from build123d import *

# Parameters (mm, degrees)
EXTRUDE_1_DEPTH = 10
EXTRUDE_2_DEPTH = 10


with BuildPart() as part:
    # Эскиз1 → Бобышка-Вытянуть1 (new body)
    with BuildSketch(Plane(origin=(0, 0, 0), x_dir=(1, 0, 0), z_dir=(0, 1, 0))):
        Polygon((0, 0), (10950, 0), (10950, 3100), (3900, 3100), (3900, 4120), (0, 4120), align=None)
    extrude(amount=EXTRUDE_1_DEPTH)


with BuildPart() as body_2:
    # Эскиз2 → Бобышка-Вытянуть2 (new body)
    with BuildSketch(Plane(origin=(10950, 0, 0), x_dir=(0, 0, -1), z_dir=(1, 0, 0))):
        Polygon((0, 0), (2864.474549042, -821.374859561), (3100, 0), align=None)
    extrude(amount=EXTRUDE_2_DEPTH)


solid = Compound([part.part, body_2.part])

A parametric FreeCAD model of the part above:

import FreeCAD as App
import Part
import Sketcher
from FreeCAD import Vector
Q = App.Units.Quantity

doc = App.newDocument("Part")
body = doc.addObject("PartDesign::Body", "Body")

# Sketch on XZ plane
sketch1 = body.newObject("Sketcher::SketchObject", "Sketch")
sketch1.AttachmentSupport = (doc.getObject("XZ_Plane"), [""])
sketch1.MapMode = "FlatFace"
sketch1.addGeometry([
    Part.LineSegment(Vector(0, 0, 0), Vector(10950, 0, 0)),  # 0
    Part.LineSegment(Vector(10950, 0, 0), Vector(10950, -3100, 0)),  # 1
    Part.LineSegment(Vector(10950, -3100, 0), Vector(3900, -3100, 0)),  # 2
    Part.LineSegment(Vector(3900, -3100, 0), Vector(3900, -4120, 0)),  # 3
    Part.LineSegment(Vector(3900, -4120, 0), Vector(0, -4120, 0)),  # 4
    Part.LineSegment(Vector(0, -4120, 0), Vector(0, 0, 0)),  # 5
], False)
sketch1.addConstraint([
    Sketcher.Constraint("Coincident", 0, 2, 1, 1),
    Sketcher.Constraint("Coincident", 1, 2, 2, 1),
    Sketcher.Constraint("Coincident", 2, 2, 3, 1),
    Sketcher.Constraint("Coincident", 3, 2, 4, 1),
    Sketcher.Constraint("Coincident", 4, 2, 5, 1),
    Sketcher.Constraint("Coincident", 5, 2, 0, 1),
    Sketcher.Constraint("Horizontal", 0),
    Sketcher.Constraint("Vertical", 1),
    Sketcher.Constraint("Horizontal", 2),
    Sketcher.Constraint("Vertical", 3),
    Sketcher.Constraint("Horizontal", 4),
    Sketcher.Constraint("Vertical", 5),
    Sketcher.Constraint("Coincident", 5, 2, -1, 1),
    Sketcher.Constraint("DistanceX", 0, 1, 0, 2, Q("10950 mm")),
    Sketcher.Constraint("DistanceX", 2, 2, 2, 1, Q("7050 mm")),
    Sketcher.Constraint("DistanceY", 1, 2, 1, 1, Q("3100 mm")),
    Sketcher.Constraint("DistanceY", 3, 2, 3, 1, Q("1020 mm")),
])
pad1 = body.newObject("PartDesign::Pad", "Pad")
pad1.Profile = sketch1
pad1.Length = 10
pad1.Reversed = True
body2 = doc.addObject("PartDesign::Body", "Body001")

# Sketch on YZ plane
sketch2 = body2.newObject("Sketcher::SketchObject", "Sketch001")
sketch2.AttachmentSupport = (doc.getObject("YZ_Plane001"), [""])
sketch2.MapMode = "FlatFace"
sketch2.AttachmentOffset = App.Placement(Vector(0, 0, 10950), App.Rotation())
sketch2.addGeometry([
    Part.LineSegment(Vector(0, 0, 0), Vector(-821, -2864, 0)),
    Part.LineSegment(Vector(-821, -2864, 0), Vector(0, -3100, 0)),
    Part.LineSegment(Vector(0, -3100, 0), Vector(0, 0, 0)),
], False)
sketch2.addConstraint([
    Sketcher.Constraint("Coincident", 0, 2, 1, 1),
    Sketcher.Constraint("Coincident", 1, 2, 2, 1),
    Sketcher.Constraint("Coincident", 2, 2, 0, 1),
    Sketcher.Constraint("Vertical", 2),
    Sketcher.Constraint("Coincident", 2, 2, -1, 1),
    Sketcher.Constraint("Perpendicular", 0, 1),
    Sketcher.Constraint("DistanceY", 2, 1, 2, 2, Q("3100 mm")),
    Sketcher.Constraint("Angle", 0, Q("-106 deg")),
])
pad2 = body2.newObject("PartDesign::Pad", "Pad001")
pad2.Profile = sketch2
pad2.Length = 10

doc.recompute()
